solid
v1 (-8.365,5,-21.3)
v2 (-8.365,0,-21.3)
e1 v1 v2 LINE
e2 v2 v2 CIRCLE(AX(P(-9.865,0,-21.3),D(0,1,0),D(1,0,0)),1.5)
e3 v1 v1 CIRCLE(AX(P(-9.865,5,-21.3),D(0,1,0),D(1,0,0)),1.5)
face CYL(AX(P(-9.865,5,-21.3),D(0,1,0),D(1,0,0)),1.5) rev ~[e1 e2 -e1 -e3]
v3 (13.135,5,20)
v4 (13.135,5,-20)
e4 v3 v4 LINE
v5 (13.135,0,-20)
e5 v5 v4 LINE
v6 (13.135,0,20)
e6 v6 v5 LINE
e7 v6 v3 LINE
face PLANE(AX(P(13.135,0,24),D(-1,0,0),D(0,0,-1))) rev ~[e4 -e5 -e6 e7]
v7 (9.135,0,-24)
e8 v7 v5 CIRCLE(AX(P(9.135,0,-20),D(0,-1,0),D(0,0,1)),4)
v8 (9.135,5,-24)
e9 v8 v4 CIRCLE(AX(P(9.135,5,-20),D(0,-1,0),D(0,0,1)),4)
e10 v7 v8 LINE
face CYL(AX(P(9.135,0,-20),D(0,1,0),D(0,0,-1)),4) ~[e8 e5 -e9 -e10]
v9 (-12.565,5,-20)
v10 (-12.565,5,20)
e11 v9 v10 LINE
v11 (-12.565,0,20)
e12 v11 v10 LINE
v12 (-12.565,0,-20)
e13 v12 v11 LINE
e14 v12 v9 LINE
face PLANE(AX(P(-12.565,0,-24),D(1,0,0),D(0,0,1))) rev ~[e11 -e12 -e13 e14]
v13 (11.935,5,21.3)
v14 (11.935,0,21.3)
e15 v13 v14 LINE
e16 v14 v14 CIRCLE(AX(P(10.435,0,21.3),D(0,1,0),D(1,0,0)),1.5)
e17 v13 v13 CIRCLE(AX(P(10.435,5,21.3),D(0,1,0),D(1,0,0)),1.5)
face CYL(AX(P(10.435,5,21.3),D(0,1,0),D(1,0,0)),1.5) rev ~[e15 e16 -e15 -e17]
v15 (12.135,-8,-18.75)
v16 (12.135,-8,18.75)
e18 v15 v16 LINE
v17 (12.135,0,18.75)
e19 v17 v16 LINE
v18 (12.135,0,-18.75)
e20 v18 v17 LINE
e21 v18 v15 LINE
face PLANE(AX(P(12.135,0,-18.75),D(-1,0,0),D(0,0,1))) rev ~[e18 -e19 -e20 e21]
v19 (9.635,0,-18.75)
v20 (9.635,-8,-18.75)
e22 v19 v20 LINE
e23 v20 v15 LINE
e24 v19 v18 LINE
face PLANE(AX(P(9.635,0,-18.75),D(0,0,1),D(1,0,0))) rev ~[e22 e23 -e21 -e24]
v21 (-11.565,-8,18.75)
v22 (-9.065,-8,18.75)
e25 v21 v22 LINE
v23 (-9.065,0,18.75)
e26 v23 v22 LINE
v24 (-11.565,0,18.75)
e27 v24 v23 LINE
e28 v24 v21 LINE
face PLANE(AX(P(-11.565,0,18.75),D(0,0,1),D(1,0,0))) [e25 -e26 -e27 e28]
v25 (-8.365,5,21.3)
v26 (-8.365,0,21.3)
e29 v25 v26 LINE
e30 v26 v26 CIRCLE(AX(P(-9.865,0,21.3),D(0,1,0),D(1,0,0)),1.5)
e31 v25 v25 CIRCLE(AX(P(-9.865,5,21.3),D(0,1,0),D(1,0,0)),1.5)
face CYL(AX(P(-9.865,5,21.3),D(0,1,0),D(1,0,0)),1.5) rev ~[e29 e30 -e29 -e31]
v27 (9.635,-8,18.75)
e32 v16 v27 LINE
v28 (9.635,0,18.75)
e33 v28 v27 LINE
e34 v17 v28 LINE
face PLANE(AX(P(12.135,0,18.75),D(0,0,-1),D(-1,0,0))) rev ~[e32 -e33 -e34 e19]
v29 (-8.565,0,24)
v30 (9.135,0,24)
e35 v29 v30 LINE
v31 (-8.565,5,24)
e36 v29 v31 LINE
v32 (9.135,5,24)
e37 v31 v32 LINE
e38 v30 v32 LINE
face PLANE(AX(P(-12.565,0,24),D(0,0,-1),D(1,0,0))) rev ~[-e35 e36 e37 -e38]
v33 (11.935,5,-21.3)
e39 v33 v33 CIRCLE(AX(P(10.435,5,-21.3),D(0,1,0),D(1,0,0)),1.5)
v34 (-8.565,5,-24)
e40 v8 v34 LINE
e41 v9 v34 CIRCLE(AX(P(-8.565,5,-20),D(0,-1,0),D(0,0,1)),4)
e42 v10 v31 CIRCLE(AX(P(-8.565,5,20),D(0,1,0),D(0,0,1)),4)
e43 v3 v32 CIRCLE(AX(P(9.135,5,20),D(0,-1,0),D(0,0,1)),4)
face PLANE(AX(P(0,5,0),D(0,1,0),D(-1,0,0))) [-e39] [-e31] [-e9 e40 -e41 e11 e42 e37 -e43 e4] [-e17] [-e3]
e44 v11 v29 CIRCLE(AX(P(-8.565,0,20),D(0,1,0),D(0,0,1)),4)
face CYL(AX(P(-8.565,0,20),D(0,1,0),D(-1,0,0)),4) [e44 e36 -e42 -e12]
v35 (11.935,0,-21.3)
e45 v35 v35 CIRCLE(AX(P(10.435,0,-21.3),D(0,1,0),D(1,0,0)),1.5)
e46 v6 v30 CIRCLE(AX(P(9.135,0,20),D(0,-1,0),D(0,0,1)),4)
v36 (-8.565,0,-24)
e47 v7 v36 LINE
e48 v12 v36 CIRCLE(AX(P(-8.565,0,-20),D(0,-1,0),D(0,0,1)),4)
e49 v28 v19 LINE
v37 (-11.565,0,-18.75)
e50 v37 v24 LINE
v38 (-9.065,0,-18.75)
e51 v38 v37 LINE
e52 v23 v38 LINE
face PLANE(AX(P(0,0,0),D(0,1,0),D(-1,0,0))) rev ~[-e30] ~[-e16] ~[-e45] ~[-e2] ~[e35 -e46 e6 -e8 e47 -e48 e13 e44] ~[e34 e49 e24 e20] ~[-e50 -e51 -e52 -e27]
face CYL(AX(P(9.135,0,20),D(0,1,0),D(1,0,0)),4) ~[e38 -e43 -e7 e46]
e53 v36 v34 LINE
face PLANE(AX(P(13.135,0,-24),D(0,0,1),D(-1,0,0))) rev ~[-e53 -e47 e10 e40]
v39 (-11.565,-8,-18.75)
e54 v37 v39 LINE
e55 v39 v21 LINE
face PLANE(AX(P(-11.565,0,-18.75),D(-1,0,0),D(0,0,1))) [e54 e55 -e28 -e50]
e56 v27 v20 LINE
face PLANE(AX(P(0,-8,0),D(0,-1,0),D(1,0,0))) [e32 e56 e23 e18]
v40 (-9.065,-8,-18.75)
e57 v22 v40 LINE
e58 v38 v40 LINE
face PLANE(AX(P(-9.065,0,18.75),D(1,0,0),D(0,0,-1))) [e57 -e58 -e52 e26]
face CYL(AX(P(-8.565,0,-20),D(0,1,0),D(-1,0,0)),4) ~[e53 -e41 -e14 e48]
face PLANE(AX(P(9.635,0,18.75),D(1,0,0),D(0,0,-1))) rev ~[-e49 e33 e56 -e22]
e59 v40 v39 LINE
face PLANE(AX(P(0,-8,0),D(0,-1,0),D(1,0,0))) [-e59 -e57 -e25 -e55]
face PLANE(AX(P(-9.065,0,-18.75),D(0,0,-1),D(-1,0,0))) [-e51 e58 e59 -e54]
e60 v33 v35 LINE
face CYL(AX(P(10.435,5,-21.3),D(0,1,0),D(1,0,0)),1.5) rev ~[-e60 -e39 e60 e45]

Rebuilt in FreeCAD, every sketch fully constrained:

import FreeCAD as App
import Part
import Sketcher

V = App.Vector


def edges_at(feature, points):
    """Names of the edges that pass closest to the given points."""
    edges = feature.Shape.Edges
    near = lambda p: min(range(len(edges)), key=lambda i: edges[i].distToShape(Part.Vertex(*p))[0])
    return sorted({f"Edge{near(p) + 1}" for p in points})


def add_polygon(sketch, points):
    """Adds a closed chain of lines whose ends are joined by coincident constraints."""
    first, n = sketch.GeometryCount, len(points)
    for a, b in zip(points, points[1:] + points[:1]):
        sketch.addGeometry(Part.LineSegment(App.Vector(*a, 0), App.Vector(*b, 0)), False)
    for i in range(n):
        sketch.addConstraint(Sketcher.Constraint("Coincident", first + i, 2, first + (i + 1) % n, 1))

doc = App.newDocument("Part")
body = doc.addObject("PartDesign::Body", "Body")

# Sketch on XZ plane
sketch1 = body.newObject("Sketcher::SketchObject", "Sketch")
sketch1.AttachmentSupport = (doc.getObject("XZ_Plane"), [""])
sketch1.MapMode = "FlatFace"
add_polygon(sketch1, [(-13, -24), (-13, 24), (13, 24), (13, -24)])  # lines 0-3
sketch1.addConstraint([
    Sketcher.Constraint("Vertical", 0),
    Sketcher.Constraint("Horizontal", 1),
    Sketcher.Constraint("Vertical", 2),
    Sketcher.Constraint("Horizontal", 3),
    Sketcher.Constraint("DistanceY", 0, 1, 0, 2, 48.0),
    Sketcher.Constraint("DistanceX", 1, 1, 1, 2, 25.7),
    Sketcher.Constraint("DistanceY", -1, 1, 0, 2, 24.0),
    Sketcher.Constraint("DistanceX", 0, 2, -1, 1, 12.565),
])
pad1 = body.newObject("PartDesign::Pad", "Pad")
pad1.Profile = sketch1
pad1.Length = 5
pad1.Reversed = True
doc.recompute()

fillet = body.newObject("PartDesign::Fillet", "Fillet")
fillet.Base = (pad1, edges_at(pad1, [(13.135, 2.5, 24), (13.135, 2.5, -24), (-12.565, 2.5, 24)]))
fillet.Radius = 4
doc.recompute()

fillet2 = body.newObject("PartDesign::Fillet", "Fillet001")
fillet2.Base = (fillet, edges_at(fillet, [(-12.565, 2.5, -24)]))
fillet2.Radius = 4

# Sketch on XZ plane
sketch2 = body.newObject("Sketcher::SketchObject", "Sketch001")
sketch2.AttachmentSupport = (doc.getObject("XZ_Plane"), [""])
sketch2.MapMode = "FlatFace"
sketch2.AttachmentOffset = App.Placement(V(0, 0, -5), App.Rotation())
sketch2.addGeometry([
    Part.Circle(V(-9.9, 21.3, 0), V(0, 0, 1), 1.5),
    Part.Circle(V(-9.9, -21.3, 0), V(0, 0, 1), 1.5),
    Part.Circle(V(10.4, 21.3, 0), V(0, 0, 1), 1.5),
    Part.Circle(V(10.4, -21.3, 0), V(0, 0, 1), 1.5),
], False)
sketch2.addConstraint([
    Sketcher.Constraint("Equal", 0, 1),
    Sketcher.Constraint("Equal", 1, 2),
    Sketcher.Constraint("Equal", 2, 3),
    Sketcher.Constraint("Symmetric", 0, 3, 1, 3, -1),
    Sketcher.Constraint("Symmetric", 2, 3, 3, 3, -1),
    Sketcher.Constraint("Horizontal", 0, 3, 2, 3),
    Sketcher.Constraint("Diameter", 0, 3.0),
    Sketcher.Constraint("DistanceY", -1, 1, 0, 3, 21.3),
    Sketcher.Constraint("DistanceX", 0, 3, 2, 3, 20.3),
    Sketcher.Constraint("DistanceX", 0, 3, -1, 1, 9.865),
])
pocket1 = body.newObject("PartDesign::Pocket", "Pocket")
pocket1.Profile = sketch2
pocket1.Length = 10
pocket1.Reversed = True

# Sketch on XZ plane
sketch3 = body.newObject("Sketcher::SketchObject", "Sketch002")
sketch3.AttachmentSupport = (doc.getObject("XZ_Plane"), [""])
sketch3.MapMode = "FlatFace"
add_polygon(sketch3, [(-9.1, 18.8), (-11.6, 18.8), (-11.6, -18.8), (-9.1, -18.8)])  # lines 0-3
add_polygon(sketch3, [(12.1, -18.8), (12.1, 18.8), (9.6, 18.8), (9.6, -18.8)])  # lines 4-7
sketch3.addConstraint([
    Sketcher.Constraint("Horizontal", 0),
    Sketcher.Constraint("Vertical", 1),
    Sketcher.Constraint("Horizontal", 2),
    Sketcher.Constraint("Vertical", 3),
    Sketcher.Constraint("Vertical", 4),
    Sketcher.Constraint("Horizontal", 5),
    Sketcher.Constraint("Vertical", 6),
    Sketcher.Constraint("Horizontal", 7),
    Sketcher.Constraint("Horizontal", 3, 2, 4, 2),
    Sketcher.Constraint("Horizontal", 2, 2, 6, 2),
    Sketcher.Constraint("Equal", 2, 5),
    Sketcher.Constraint("DistanceX", 0, 2, 0, 1, 2.5),
    Sketcher.Constraint("DistanceY", 1, 2, 1, 1, 37.5),
    Sketcher.Constraint("DistanceX", 3, 2, 4, 2, 21.2),
    Sketcher.Constraint("DistanceY", -1, 1, 0, 2, 18.75),
    Sketcher.Constraint("DistanceX", 0, 2, -1, 1, 11.565),
])
pad2 = body.newObject("PartDesign::Pad", "Pad001")
pad2.Profile = sketch3
pad2.Length = 8

doc.recompute()
